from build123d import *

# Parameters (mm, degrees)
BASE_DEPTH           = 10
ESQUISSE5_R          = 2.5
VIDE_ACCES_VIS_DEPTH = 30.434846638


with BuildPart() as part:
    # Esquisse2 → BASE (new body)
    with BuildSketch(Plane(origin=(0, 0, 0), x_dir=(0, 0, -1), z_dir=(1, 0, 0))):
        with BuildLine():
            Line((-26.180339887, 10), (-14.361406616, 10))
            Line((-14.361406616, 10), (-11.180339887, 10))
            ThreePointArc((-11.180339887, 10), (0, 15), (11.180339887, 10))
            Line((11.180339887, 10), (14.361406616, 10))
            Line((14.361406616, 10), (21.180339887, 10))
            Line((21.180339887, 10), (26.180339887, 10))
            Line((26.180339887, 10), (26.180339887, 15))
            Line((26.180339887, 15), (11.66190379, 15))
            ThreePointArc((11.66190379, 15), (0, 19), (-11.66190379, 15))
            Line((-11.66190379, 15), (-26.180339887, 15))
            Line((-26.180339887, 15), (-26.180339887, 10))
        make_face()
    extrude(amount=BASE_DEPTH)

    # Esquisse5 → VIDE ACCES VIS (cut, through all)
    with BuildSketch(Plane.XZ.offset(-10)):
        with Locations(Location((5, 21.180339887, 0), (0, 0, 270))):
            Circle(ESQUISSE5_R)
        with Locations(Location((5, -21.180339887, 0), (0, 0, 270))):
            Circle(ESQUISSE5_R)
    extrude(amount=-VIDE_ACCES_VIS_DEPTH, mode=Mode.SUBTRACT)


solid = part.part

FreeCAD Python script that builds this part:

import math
import FreeCAD as App
import Part
import Sketcher
from FreeCAD import Vector
Q = App.Units.Quantity

doc = App.newDocument("Part")
params = doc.addObject("Spreadsheet::Sheet", "Params")
for row, (alias, value) in enumerate([
    ("sketch1_radius", "15 mm"),
    ("sketch1_radius2", "19 mm"),
    ("sketch1_width", "5 mm"),
    ("sketch1_height", "15 mm"),
    ("pad1_length", "10 mm"),
    ("sketch2_diameter", "5 mm"),
], start=1):
    params.set(f"A{row}", alias)
    params.set(f"B{row}", "=" + value)
    params.setAlias(f"B{row}", alias)

body = doc.addObject("PartDesign::Body", "Body")

# Sketch on YZ plane
sketch1 = doc.addObject("Sketcher::SketchObject", "Sketch")
body.addObject(sketch1)
sketch1.AttachmentSupport = (doc.YZ_Plane, [""])
sketch1.MapMode = "FlatFace"
sketch1.addGeometry(Part.LineSegment(Vector(10, 26, 0), Vector(10, 11, 0)), False)
sketch1.addGeometry(Part.ArcOfCircle(Part.Circle(Vector(0, 0, 0), Vector(0, 0, 1), 15), math.radians(-48), math.radians(48)), False)
sketch1.addGeometry(Part.LineSegment(Vector(10, -11, 0), Vector(10, -26, 0)), False)
sketch1.addGeometry(Part.LineSegment(Vector(10, -26, 0), Vector(15, -26, 0)), False)
sketch1.addGeometry(Part.LineSegment(Vector(15, -26, 0), Vector(15, -12, 0)), False)
sketch1.addGeometry(Part.ArcOfCircle(Part.Circle(Vector(0, 0, 0), Vector(0, 0, 1), 19), math.radians(-38), math.radians(38)), False)
sketch1.addGeometry(Part.LineSegment(Vector(15, 12, 0), Vector(15, 26, 0)), False)
sketch1.addGeometry(Part.LineSegment(Vector(15, 26, 0), Vector(10, 26, 0)), False)
sketch1.addConstraint(Sketcher.Constraint("Coincident", 0, 2, 1, 2))
sketch1.addConstraint(Sketcher.Constraint("Coincident", 1, 1, 2, 1))
sketch1.addConstraint(Sketcher.Constraint("Coincident", 2, 2, 3, 1))
sketch1.addConstraint(Sketcher.Constraint("Coincident", 3, 2, 4, 1))
sketch1.addConstraint(Sketcher.Constraint("Coincident", 4, 2, 5, 1))
sketch1.addConstraint(Sketcher.Constraint("Coincident", 5, 2, 6, 1))
sketch1.addConstraint(Sketcher.Constraint("Coincident", 6, 2, 7, 1))
sketch1.addConstraint(Sketcher.Constraint("Coincident", 7, 2, 0, 1))
sketch1.addConstraint(Sketcher.Constraint("Vertical", 0))
sketch1.addConstraint(Sketcher.Constraint("Vertical", 2))
sketch1.addConstraint(Sketcher.Constraint("Horizontal", 3))
sketch1.addConstraint(Sketcher.Constraint("Vertical", 4))
sketch1.addConstraint(Sketcher.Constraint("Vertical", 6))
sketch1.addConstraint(Sketcher.Constraint("Horizontal", 7))
sketch1.addConstraint(Sketcher.Constraint("Coincident", 1, 3, -1, 1))
sketch1.addConstraint(Sketcher.Constraint("Coincident", 5, 3, -1, 1))
sketch1.addConstraint(Sketcher.Constraint("Symmetric", 3, 2, 6, 2, -1))
sketch1.addConstraint(Sketcher.Constraint("Vertical", 0, 2, 1, 1))
sketch1.addConstraint(Sketcher.Constraint("Radius", 1, Q("15 mm")))
sketch1.addConstraint(Sketcher.Constraint("Radius", 5, Q("19 mm")))
sketch1.addConstraint(Sketcher.Constraint("DistanceX", 3, 1, 3, 2, Q("5 mm")))
sketch1.addConstraint(Sketcher.Constraint("DistanceY", 0, 2, 0, 1, Q("15 mm")))
sketch1.addConstraint(Sketcher.Constraint("DistanceX", -1, 1, 0, 2, Q("10 mm")))
sketch1.setExpression("Constraints[18]", "Params.sketch1_radius")
sketch1.setExpression("Constraints[19]", "Params.sketch1_radius2")
sketch1.setExpression("Constraints[20]", "Params.sketch1_width")
sketch1.setExpression("Constraints[21]", "Params.sketch1_height")
pad1 = doc.addObject("PartDesign::Pad", "Pad")
body.addObject(pad1)
pad1.Profile = sketch1
pad1.setExpression("Length", "Params.pad1_length")

# Sketch on XZ plane
sketch2 = doc.addObject("Sketcher::SketchObject", "Sketch001")
body.addObject(sketch2)
sketch2.AttachmentSupport = (doc.XZ_Plane, [""])
sketch2.MapMode = "FlatFace"
sketch2.AttachmentOffset = App.Placement(Vector(0, 0, -10), App.Rotation())
sketch2.addGeometry(Part.Circle(Vector(5, 21.2, 0), Vector(0, 0, 1), 2.5), False)
sketch2.addGeometry(Part.Circle(Vector(5, -21.2, 0), Vector(0, 0, 1), 2.5), False)
sketch2.addConstraint(Sketcher.Constraint("Equal", 0, 1))
sketch2.addConstraint(Sketcher.Constraint("Symmetric", 0, 3, 1, 3, -1))
sketch2.addConstraint(Sketcher.Constraint("Diameter", 0, Q("5 mm")))
sketch2.addConstraint(Sketcher.Constraint("DistanceX", -1, 1, 0, 3, Q("5 mm")))
sketch2.addConstraint(Sketcher.Constraint("DistanceY", -1, 1, 0, 3, Q("21.18034 mm")))
sketch2.setExpression("Constraints[2]", "Params.sketch2_diameter")
pocket1 = doc.addObject("PartDesign::Pocket", "Pocket")
body.addObject(pocket1)
pocket1.Profile = sketch2
pocket1.Type = "ThroughAll"

doc.recompute()
